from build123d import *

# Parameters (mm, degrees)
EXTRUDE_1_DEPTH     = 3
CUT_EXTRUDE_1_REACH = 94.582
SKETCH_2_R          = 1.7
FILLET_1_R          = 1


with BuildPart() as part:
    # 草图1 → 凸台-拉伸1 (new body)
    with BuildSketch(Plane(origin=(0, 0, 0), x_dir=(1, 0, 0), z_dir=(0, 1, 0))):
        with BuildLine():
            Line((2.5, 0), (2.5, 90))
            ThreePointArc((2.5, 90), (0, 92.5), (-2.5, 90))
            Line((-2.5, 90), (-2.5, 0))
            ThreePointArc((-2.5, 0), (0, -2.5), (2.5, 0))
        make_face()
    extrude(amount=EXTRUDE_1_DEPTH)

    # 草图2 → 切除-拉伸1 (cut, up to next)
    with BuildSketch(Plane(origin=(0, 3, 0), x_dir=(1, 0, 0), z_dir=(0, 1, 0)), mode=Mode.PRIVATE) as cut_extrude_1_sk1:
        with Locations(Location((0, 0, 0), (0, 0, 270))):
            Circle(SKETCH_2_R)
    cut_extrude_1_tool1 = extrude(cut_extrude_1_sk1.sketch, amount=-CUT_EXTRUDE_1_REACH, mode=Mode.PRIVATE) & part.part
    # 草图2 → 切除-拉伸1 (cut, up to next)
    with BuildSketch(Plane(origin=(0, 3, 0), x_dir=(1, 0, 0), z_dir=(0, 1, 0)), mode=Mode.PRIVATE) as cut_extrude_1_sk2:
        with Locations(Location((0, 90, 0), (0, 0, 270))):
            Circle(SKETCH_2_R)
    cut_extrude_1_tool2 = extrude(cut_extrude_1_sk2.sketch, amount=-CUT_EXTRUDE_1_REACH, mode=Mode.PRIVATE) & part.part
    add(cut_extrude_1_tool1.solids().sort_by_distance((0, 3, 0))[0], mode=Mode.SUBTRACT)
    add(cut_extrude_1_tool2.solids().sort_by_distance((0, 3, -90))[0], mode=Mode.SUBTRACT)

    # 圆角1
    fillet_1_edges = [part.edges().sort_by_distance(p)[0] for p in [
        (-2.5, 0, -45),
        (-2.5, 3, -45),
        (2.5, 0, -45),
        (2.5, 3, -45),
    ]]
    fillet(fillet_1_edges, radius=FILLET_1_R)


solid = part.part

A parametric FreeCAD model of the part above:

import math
import FreeCAD as App
import Part
import Sketcher

V = App.Vector
Q = App.Units.Quantity


def edges_at(feature, points):
    """Names of the edges that pass closest to the given points."""
    edges = feature.Shape.Edges
    near = lambda p: min(range(len(edges)), key=lambda i: edges[i].distToShape(Part.Vertex(*p))[0])
    return sorted({f"Edge{near(p) + 1}" for p in points})

doc = App.newDocument("Part")
body = doc.addObject("PartDesign::Body", "Body")

# Sketch on XZ plane
sketch1 = body.newObject("Sketcher::SketchObject", "Sketch")
sketch1.AttachmentSupport = (doc.getObject("XZ_Plane"), [""])
sketch1.MapMode = "FlatFace"
sketch1.addGeometry([
    Part.LineSegment(V(2.5, 0, 0), V(2.5, -90, 0)),
    Part.ArcOfCircle(Part.Circle(V(0, -90, 0), V(0, 0, 1), 2.5), math.radians(180), math.radians(360)),
    Part.LineSegment(V(-2.5, -90, 0), V(-2.5, 0, 0)),
    Part.ArcOfCircle(Part.Circle(V(0, 0, 0), V(0, 0, 1), 2.5), math.radians(0), math.radians(180)),
], False)
sketch1.addConstraint([
    Sketcher.Constraint("Tangent", 0, 2, 1, 2),
    Sketcher.Constraint("Tangent", 1, 1, 2, 1),
    Sketcher.Constraint("Tangent", 2, 2, 3, 2),
    Sketcher.Constraint("Tangent", 3, 1, 0, 1),
    Sketcher.Constraint("Vertical", 0),
    Sketcher.Constraint("Vertical", 2),
    Sketcher.Constraint("Coincident", 3, 3, -1, 1),
    Sketcher.Constraint("Radius", 1, Q("2.5 mm")),
    Sketcher.Constraint("DistanceY", 0, 2, 0, 1, Q("90 mm")),
])
pad1 = body.newObject("PartDesign::Pad", "Pad")
pad1.Profile = sketch1
pad1.Length = 3
pad1.Reversed = True

# Sketch on XZ plane
sketch2 = body.newObject("Sketcher::SketchObject", "Sketch001")
sketch2.AttachmentSupport = (doc.getObject("XZ_Plane"), [""])
sketch2.MapMode = "FlatFace"
sketch2.AttachmentOffset = App.Placement(V(0, 0, -3), App.Rotation())
sketch2.addGeometry(Part.Circle(V(0, 0, 0), V(0, 0, 1), 1.7), False)
sketch2.addConstraint([
    Sketcher.Constraint("Coincident", 0, 3, -1, 1),
    Sketcher.Constraint("Diameter", 0, Q("3.4 mm")),
])
pocket1 = body.newObject("PartDesign::Pocket", "Pocket")
pocket1.Profile = sketch2
pocket1.Type = "UpToFirst"
pocket1.Reversed = True

# Sketch on XZ plane
sketch3 = body.newObject("Sketcher::SketchObject", "Sketch002")
sketch3.AttachmentSupport = (doc.getObject("XZ_Plane"), [""])
sketch3.MapMode = "FlatFace"
sketch3.AttachmentOffset = App.Placement(V(0, 0, -3), App.Rotation())
sketch3.addGeometry(Part.Circle(V(0, -90, 0), V(0, 0, 1), 1.7), False)
sketch3.addConstraint([
    Sketcher.Constraint("PointOnObject", 0, 3, -2),
    Sketcher.Constraint("Diameter", 0, Q("3.4 mm")),
    Sketcher.Constraint("DistanceY", 0, 3, -1, 1, Q("90 mm")),
])
pocket2 = body.newObject("PartDesign::Pocket", "Pocket001")
pocket2.Profile = sketch3
pocket2.Type = "UpToFirst"
pocket2.Reversed = True
doc.recompute()

fillet = body.newObject("PartDesign::Fillet", "Fillet")
fillet.Base = (pocket2, edges_at(pocket2, [
    (-2.5, 0, -45),
    (-2.5, 3, -45),
    (2.5, 0, -45),
    (2.5, 3, -45),
]))
fillet.Radius = 1

doc.recompute()
